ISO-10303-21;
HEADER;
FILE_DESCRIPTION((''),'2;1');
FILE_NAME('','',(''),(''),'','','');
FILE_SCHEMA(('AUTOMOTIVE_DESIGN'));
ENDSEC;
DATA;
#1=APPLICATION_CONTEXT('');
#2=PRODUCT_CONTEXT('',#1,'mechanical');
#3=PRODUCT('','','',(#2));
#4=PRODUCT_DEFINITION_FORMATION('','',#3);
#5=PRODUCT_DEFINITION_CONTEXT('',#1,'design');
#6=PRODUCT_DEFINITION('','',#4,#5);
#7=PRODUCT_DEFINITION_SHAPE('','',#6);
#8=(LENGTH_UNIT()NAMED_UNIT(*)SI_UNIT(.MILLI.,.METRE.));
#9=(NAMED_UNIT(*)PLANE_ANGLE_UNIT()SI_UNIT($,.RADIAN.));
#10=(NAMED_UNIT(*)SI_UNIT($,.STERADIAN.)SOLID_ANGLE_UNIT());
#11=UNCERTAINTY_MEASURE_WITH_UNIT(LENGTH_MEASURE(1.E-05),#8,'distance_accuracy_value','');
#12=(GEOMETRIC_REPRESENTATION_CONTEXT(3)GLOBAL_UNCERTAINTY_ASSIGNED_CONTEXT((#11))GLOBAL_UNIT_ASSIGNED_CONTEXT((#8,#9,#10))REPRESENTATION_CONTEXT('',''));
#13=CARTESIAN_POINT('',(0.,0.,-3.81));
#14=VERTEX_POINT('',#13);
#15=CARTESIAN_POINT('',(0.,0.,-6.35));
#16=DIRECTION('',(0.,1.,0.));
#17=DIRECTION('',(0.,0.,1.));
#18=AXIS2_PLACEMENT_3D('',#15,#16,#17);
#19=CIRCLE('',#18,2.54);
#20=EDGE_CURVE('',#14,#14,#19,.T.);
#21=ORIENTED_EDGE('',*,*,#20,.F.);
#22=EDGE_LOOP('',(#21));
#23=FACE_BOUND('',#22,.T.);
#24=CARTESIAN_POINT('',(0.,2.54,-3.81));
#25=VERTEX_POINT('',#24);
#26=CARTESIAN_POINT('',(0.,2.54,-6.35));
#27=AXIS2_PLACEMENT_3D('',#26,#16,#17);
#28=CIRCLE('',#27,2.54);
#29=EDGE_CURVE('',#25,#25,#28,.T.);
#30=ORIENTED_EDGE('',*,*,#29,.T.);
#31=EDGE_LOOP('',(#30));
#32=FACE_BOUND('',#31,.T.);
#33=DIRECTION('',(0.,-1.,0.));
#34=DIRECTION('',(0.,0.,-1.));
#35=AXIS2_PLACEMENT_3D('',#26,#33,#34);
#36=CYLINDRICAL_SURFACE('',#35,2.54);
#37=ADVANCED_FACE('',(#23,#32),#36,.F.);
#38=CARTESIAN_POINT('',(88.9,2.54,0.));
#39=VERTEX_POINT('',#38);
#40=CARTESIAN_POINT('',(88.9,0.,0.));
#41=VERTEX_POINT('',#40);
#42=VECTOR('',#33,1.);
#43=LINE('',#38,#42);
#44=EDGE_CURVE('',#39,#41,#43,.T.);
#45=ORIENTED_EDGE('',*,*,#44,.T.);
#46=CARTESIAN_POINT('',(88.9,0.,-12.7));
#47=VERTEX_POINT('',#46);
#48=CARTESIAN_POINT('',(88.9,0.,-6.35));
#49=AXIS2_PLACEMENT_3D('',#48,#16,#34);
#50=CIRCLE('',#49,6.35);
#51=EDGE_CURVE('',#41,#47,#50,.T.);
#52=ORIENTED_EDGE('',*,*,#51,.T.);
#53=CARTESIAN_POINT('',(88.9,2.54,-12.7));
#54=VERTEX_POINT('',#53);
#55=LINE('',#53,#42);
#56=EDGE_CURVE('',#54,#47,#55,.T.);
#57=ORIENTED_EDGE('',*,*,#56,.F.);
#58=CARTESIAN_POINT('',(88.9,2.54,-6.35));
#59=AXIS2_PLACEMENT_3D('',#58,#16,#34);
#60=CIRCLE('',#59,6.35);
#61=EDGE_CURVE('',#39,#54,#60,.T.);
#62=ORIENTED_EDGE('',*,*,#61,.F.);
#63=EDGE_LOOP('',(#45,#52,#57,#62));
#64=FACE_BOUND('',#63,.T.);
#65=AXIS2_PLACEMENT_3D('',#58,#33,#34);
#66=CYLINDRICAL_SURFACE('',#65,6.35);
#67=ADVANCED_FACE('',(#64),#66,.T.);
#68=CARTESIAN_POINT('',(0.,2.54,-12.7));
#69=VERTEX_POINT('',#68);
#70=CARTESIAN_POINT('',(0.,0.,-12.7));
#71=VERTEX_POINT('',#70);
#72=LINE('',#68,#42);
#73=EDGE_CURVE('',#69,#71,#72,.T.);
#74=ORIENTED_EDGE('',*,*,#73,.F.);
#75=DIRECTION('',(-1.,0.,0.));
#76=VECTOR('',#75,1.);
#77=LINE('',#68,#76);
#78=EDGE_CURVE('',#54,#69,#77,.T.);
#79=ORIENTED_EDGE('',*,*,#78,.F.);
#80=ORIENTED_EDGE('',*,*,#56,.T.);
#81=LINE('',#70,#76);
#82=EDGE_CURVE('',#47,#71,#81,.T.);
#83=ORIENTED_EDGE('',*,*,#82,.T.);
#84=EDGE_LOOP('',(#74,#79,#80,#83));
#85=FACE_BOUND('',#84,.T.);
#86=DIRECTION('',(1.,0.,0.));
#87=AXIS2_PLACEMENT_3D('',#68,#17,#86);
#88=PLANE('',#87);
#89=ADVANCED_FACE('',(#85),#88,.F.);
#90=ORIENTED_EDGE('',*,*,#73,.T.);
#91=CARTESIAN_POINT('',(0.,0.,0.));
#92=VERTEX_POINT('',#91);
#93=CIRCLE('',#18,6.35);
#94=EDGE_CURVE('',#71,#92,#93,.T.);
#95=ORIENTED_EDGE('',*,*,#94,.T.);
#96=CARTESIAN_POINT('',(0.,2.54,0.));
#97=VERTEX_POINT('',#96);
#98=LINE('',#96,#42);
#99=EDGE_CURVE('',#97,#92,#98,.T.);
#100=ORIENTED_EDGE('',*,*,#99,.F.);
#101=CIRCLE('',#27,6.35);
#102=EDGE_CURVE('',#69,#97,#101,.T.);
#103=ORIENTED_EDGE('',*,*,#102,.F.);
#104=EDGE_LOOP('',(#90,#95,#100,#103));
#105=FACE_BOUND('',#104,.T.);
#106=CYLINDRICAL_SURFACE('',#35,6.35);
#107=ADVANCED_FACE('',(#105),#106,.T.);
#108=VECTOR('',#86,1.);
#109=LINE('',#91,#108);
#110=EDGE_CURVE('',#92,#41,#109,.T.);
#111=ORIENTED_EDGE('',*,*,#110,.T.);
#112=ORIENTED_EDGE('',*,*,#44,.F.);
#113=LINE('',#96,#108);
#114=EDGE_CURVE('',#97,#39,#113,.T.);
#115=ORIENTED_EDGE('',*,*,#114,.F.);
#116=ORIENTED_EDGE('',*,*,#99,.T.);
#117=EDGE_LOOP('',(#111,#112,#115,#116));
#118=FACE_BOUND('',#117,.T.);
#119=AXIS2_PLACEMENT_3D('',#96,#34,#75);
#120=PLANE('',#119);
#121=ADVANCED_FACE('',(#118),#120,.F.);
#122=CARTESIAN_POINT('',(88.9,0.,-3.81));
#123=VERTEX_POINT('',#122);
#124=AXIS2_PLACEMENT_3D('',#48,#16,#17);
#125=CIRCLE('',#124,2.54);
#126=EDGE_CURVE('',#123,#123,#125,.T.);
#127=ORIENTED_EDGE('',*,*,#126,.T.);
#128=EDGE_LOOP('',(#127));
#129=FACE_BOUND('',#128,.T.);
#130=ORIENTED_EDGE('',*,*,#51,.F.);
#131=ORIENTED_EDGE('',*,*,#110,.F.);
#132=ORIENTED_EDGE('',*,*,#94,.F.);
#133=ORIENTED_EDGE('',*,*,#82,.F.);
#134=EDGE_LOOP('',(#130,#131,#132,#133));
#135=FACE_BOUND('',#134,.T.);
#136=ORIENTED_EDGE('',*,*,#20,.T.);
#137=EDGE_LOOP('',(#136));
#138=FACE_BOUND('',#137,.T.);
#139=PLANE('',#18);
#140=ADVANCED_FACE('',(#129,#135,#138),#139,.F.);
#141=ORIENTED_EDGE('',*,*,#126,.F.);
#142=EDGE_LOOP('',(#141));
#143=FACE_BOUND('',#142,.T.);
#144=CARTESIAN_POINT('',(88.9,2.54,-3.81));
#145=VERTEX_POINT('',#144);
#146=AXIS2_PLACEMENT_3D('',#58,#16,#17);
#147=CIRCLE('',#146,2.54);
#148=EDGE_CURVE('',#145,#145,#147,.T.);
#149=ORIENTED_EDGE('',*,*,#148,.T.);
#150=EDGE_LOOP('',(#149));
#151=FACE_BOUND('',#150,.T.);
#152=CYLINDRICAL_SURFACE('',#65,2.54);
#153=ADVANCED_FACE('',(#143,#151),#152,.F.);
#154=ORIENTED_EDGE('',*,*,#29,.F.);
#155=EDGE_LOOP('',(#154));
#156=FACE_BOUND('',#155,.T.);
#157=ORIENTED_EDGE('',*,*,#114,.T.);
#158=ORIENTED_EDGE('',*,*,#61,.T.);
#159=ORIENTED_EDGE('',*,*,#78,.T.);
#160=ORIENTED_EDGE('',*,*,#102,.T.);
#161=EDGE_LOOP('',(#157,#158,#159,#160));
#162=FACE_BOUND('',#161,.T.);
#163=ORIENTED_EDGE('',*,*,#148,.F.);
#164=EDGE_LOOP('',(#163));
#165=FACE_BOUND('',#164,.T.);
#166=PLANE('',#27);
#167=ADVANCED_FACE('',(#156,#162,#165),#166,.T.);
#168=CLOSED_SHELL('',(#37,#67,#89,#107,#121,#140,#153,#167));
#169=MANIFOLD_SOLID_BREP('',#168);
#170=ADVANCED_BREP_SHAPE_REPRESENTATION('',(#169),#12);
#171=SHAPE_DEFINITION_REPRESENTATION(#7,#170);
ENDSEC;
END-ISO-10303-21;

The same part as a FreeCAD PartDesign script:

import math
import FreeCAD as App
import Part
import Sketcher

V = App.Vector
Q = App.Units.Quantity

doc = App.newDocument("Part")
params = doc.addObject("Spreadsheet::Sheet", "Params")
for row, (alias, value) in enumerate([
    ("sketch1_diameter", "0.2 in"),
    ("sketch1_radius", "0.25 in"),
    ("sketch1_width", "3.5 in"),
    ("pad1_length", "0.1 in"),
], start=1):
    params.set(f"A{row}", alias)
    params.set(f"B{row}", "=" + value)
    params.setAlias(f"B{row}", alias)

body = doc.addObject("PartDesign::Body", "Body")

# Sketch on XZ plane
sketch1 = doc.addObject("Sketcher::SketchObject", "Sketch")
body.addObject(sketch1)
sketch1.AttachmentSupport = (doc.XZ_Plane, [""])
sketch1.MapMode = "FlatFace"
sketch1.addGeometry([
    Part.LineSegment(V(0, 0, 0), V(88.9, 0, 0)),  # 0
    Part.ArcOfCircle(Part.Circle(V(88.9, -6.3, 0), V(0, 0, 1), 6.3), math.radians(-90), math.radians(90)),  # 1
    Part.LineSegment(V(88.9, -12.7, 0), V(0, -12.7, 0)),  # 2
    Part.ArcOfCircle(Part.Circle(V(0, -6.3, 0), V(0, 0, 1), 6.3), math.radians(90), math.radians(270)),  # 3
    Part.Circle(V(0, -6.3, 0), V(0, 0, 1), 2.5),  # 4
    Part.Circle(V(88.9, -6.3, 0), V(0, 0, 1), 2.5),  # 5
], False)
sketch1.addConstraint([
    Sketcher.Constraint("Tangent", 0, 2, 1, 2),
    Sketcher.Constraint("Tangent", 1, 1, 2, 1),
    Sketcher.Constraint("Tangent", 2, 2, 3, 2),
    Sketcher.Constraint("Tangent", 3, 1, 0, 1),
    Sketcher.Constraint("Horizontal", 0),
    Sketcher.Constraint("Horizontal", 2),
    Sketcher.Constraint("Coincident", 3, 1, -1, 1),
    Sketcher.Constraint("Coincident", 4, 3, 3, 3),
    Sketcher.Constraint("Coincident", 5, 3, 1, 3),
    Sketcher.Constraint("Equal", 4, 5),
    Sketcher.Constraint("Diameter", 4, Q("0.2 in")),
    Sketcher.Constraint("Radius", 1, Q("0.25 in")),
    Sketcher.Constraint("DistanceX", 0, 1, 0, 2, Q("3.5 in")),
])
sketch1.setExpression("Constraints[10]", "Params.sketch1_diameter")
sketch1.setExpression("Constraints[11]", "Params.sketch1_radius")
sketch1.setExpression("Constraints[12]", "Params.sketch1_width")
pad1 = doc.addObject("PartDesign::Pad", "Pad")
body.addObject(pad1)
pad1.Profile = sketch1
pad1.setExpression("Length", "Params.pad1_length")
pad1.Reversed = True

doc.recompute()
